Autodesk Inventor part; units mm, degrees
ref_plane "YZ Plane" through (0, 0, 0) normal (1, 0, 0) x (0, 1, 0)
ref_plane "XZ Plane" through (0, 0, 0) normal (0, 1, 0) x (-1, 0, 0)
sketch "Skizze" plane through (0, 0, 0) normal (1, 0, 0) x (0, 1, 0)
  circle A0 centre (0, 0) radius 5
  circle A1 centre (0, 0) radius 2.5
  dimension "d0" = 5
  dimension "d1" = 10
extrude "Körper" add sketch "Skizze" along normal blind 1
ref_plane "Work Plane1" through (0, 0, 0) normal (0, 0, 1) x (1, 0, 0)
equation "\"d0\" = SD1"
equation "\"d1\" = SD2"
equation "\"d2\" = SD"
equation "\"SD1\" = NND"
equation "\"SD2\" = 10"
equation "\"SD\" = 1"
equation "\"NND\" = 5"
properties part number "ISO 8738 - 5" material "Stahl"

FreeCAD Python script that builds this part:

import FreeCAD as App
import Part
import Sketcher
from FreeCAD import Vector
Q = App.Units.Quantity

doc = App.newDocument("Part")
body = doc.addObject("PartDesign::Body", "Body")

sketch1 = body.newObject("Sketcher::SketchObject", "Sketch")
sketch1.AttachmentSupport = (doc.getObject("YZ_Plane"), [""])
sketch1.MapMode = "FlatFace"
sketch1.addGeometry([
    Part.Circle(Vector(0, 0, 0), Vector(0, 0, 1), 5),
    Part.Circle(Vector(0, 0, 0), Vector(0, 0, 1), 2.5),
], False)
sketch1.addConstraint([
    Sketcher.Constraint("Coincident", 0, 3, -1, 1),
    Sketcher.Constraint("Coincident", 1, 3, -1, 1),
    Sketcher.Constraint("Diameter", 0, Q("10 mm")),
    Sketcher.Constraint("Diameter", 1, Q("5 mm")),
])
pad1 = body.newObject("PartDesign::Pad", "Pad")
pad1.Profile = sketch1
pad1.Length = 1

doc.recompute()
